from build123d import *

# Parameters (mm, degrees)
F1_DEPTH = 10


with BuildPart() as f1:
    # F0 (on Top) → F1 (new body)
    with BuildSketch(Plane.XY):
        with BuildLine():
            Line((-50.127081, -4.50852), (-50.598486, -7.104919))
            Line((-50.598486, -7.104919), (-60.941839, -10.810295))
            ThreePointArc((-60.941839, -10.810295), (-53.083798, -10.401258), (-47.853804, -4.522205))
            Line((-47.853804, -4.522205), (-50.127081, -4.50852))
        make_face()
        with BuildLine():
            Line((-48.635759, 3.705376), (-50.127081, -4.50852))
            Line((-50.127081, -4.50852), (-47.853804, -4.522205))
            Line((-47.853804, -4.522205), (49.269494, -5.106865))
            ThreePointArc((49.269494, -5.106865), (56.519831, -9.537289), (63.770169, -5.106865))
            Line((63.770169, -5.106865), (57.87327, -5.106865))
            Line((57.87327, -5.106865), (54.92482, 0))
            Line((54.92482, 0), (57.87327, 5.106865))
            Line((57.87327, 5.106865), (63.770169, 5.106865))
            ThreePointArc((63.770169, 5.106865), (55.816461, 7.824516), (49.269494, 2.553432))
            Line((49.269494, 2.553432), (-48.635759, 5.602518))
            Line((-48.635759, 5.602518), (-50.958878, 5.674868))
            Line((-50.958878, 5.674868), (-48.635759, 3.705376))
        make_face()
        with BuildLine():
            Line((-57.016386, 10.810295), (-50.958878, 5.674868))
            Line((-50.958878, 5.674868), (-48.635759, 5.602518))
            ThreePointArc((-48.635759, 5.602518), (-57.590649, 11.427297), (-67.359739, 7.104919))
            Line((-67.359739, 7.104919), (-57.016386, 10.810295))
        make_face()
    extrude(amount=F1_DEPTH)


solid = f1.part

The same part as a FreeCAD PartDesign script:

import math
import FreeCAD as App
import Part
import Sketcher
from FreeCAD import Vector
Q = App.Units.Quantity

doc = App.newDocument("Part")
body = doc.addObject("PartDesign::Body", "Body")

sketch1 = body.newObject("Sketcher::SketchObject", "Sketch")
sketch1.AttachmentSupport = (doc.getObject("XY_Plane"), [""])
sketch1.MapMode = "FlatFace"
sketch1.addGeometry([
    Part.ArcOfCircle(Part.Circle(Vector(-57.5, -1.2, 0), Vector(0, 0, 1), 10.2), math.radians(-110), math.radians(-19)),
    Part.LineSegment(Vector(-47.9, -4.5, 0), Vector(49.3, -5.1, 0)),
    Part.ArcOfCircle(Part.Circle(Vector(56.5, -1.4, 0), Vector(0, 0, 1), 8.1), math.radians(-153), math.radians(-27)),
    Part.LineSegment(Vector(63.8, -5.1, 0), Vector(57.9, -5.1, 0)),
    Part.LineSegment(Vector(57.9, -5.1, 0), Vector(54.9, 0, 0)),
    Part.LineSegment(Vector(54.9, 0, 0), Vector(57.9, 5.1, 0)),
    Part.LineSegment(Vector(57.9, 5.1, 0), Vector(63.8, 5.1, 0)),
    Part.ArcOfCircle(Part.Circle(Vector(57.3, -0.8, 0), Vector(0, 0, 1), 8.7), math.radians(42), math.radians(158)),
    Part.LineSegment(Vector(49.3, 2.6, 0), Vector(-48.6, 5.6, 0)),
    Part.ArcOfCircle(Part.Circle(Vector(-58.5, 0.3, 0), Vector(0, 0, 1), 11.2), math.radians(29), math.radians(142)),
    Part.LineSegment(Vector(-67.4, 7.1, 0), Vector(-57, 10.8, 0)),
    Part.LineSegment(Vector(-57, 10.8, 0), Vector(-51, 5.7, 0)),
    Part.LineSegment(Vector(-51, 5.7, 0), Vector(-48.6, 3.7, 0)),
    Part.LineSegment(Vector(-48.6, 3.7, 0), Vector(-50.1, -4.5, 0)),
    Part.LineSegment(Vector(-50.1, -4.5, 0), Vector(-50.6, -7.1, 0)),
    Part.LineSegment(Vector(-50.6, -7.1, 0), Vector(-60.9, -10.8, 0)),
], False)
sketch1.addConstraint([
    Sketcher.Constraint("Coincident", 0, 2, 1, 1),
    Sketcher.Constraint("Coincident", 1, 2, 2, 1),
    Sketcher.Constraint("Coincident", 2, 2, 3, 1),
    Sketcher.Constraint("Coincident", 3, 2, 4, 1),
    Sketcher.Constraint("Coincident", 4, 2, 5, 1),
    Sketcher.Constraint("Coincident", 5, 2, 6, 1),
    Sketcher.Constraint("Coincident", 6, 2, 7, 1),
    Sketcher.Constraint("Coincident", 7, 2, 8, 1),
    Sketcher.Constraint("Coincident", 8, 2, 9, 1),
    Sketcher.Constraint("Coincident", 9, 2, 10, 1),
    Sketcher.Constraint("Coincident", 10, 2, 11, 1),
    Sketcher.Constraint("Coincident", 11, 2, 12, 1),
    Sketcher.Constraint("Coincident", 12, 2, 13, 1),
    Sketcher.Constraint("Coincident", 13, 2, 14, 1),
    Sketcher.Constraint("Coincident", 14, 2, 15, 1),
    Sketcher.Constraint("Coincident", 15, 2, 0, 1),
    Sketcher.Constraint("Horizontal", 3),
    Sketcher.Constraint("Horizontal", 6),
    Sketcher.Constraint("Symmetric", 3, 2, 5, 2, -1),
    Sketcher.Constraint("PointOnObject", 4, 2, -1),
    Sketcher.Constraint("Parallel", 11, 12),
    Sketcher.Constraint("Parallel", 13, 14),
    Sketcher.Constraint("Parallel", 10, 15),
    Sketcher.Constraint("Horizontal", 1, 2, 2, 2),
    Sketcher.Constraint("Vertical", 2, 2, 6, 2),
    Sketcher.Constraint("Vertical", 1, 2, 7, 2),
    Sketcher.Constraint("Vertical", 8, 2, 12, 2),
    Sketcher.Constraint("Equal", 10, 15),
    Sketcher.Constraint("Angle", 4, Q("120.000001 deg")),
    Sketcher.Constraint("Radius", 0, 10.202729),
    Sketcher.Constraint("Radius", 2, 8.147759),
    Sketcher.Constraint("Radius", 7, 8.709342),
    Sketcher.Constraint("Radius", 9, 11.210282),
    Sketcher.Constraint("DistanceX", 3, 2, 3, 1, 5.896899),
    Sketcher.Constraint("DistanceX", 0, 3, 2, 3, 114.021999),
    Sketcher.Constraint("Distance", 4, 5.8969),
    Sketcher.Constraint("DistanceX", 0, 2, 1, 2, 97.123298),
    Sketcher.Constraint("DistanceY", 8, 2, 9, 2, 1.502401),
    Sketcher.Constraint("DistanceY", 0, 2, 10, 2, 15.3325),
    Sketcher.Constraint("DistanceY", 14, 2, 13, 2, 2.596399),
    Sketcher.Constraint("Distance", 8, 97.952721),
    Sketcher.Constraint("Distance", 11, 7.941411),
    Sketcher.Constraint("Distance", 13, 8.348181),
    Sketcher.Constraint("DistanceX", -1, 1, 2, 3, 56.519832),
    Sketcher.Constraint("DistanceY", 2, 3, -1, 1, 1.38953),
    Sketcher.Constraint("DistanceY", -1, 1, 9, 3, 0.25293),
    Sketcher.Constraint("DistanceY", -1, 1, 7, 2, 2.553432),
    Sketcher.Constraint("DistanceX", 8, 2, -1, 1, 48.635759),
    Sketcher.Constraint("DistanceX", 13, 2, -1, 1, 50.127081),
    Sketcher.Constraint("DistanceY", 13, 2, -1, 1, 4.50852),
    Sketcher.Constraint("DistanceX", 15, 2, -1, 1, 60.941839),
])
pad1 = body.newObject("PartDesign::Pad", "Pad")
pad1.Profile = sketch1
pad1.Length = 10

doc.recompute()
